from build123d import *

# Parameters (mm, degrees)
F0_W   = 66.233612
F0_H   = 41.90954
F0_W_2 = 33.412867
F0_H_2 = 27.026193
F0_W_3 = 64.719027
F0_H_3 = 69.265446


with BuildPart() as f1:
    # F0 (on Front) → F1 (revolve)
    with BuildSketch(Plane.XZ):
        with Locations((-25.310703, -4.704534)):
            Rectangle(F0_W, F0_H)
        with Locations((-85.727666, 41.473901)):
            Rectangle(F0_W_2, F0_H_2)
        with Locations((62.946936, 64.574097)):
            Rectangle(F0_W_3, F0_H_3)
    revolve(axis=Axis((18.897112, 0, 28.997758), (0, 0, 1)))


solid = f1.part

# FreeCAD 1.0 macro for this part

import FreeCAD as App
import Part
import Sketcher
from FreeCAD import Vector
Q = App.Units.Quantity

doc = App.newDocument("Part")
body = doc.addObject("PartDesign::Body", "Body")
body.AllowCompound = True

# Sketch on XZ plane
sketch1 = doc.addObject("Sketcher::SketchObject", "Sketch")
body.addObject(sketch1)
sketch1.AttachmentSupport = (doc.XZ_Plane, [""])
sketch1.MapMode = "FlatFace"
sketch1.addGeometry(Part.LineSegment(Vector(-58, 16, 0), Vector(-58, -26, 0)), False)
sketch1.addGeometry(Part.LineSegment(Vector(-58, -26, 0), Vector(8, -26, 0)), False)
sketch1.addGeometry(Part.LineSegment(Vector(8, -26, 0), Vector(8, 16, 0)), False)
sketch1.addGeometry(Part.LineSegment(Vector(8, 16, 0), Vector(-58, 16, 0)), False)
sketch1.addGeometry(Part.LineSegment(Vector(-102, 55, 0), Vector(-102, 28, 0)), False)
sketch1.addGeometry(Part.LineSegment(Vector(-102, 28, 0), Vector(-69, 28, 0)), False)
sketch1.addGeometry(Part.LineSegment(Vector(-69, 28, 0), Vector(-69, 55, 0)), False)
sketch1.addGeometry(Part.LineSegment(Vector(-69, 55, 0), Vector(-102, 55, 0)), False)
sketch1.addGeometry(Part.LineSegment(Vector(31, 99, 0), Vector(31, 30, 0)), False)
sketch1.addGeometry(Part.LineSegment(Vector(31, 30, 0), Vector(95, 30, 0)), False)
sketch1.addGeometry(Part.LineSegment(Vector(95, 30, 0), Vector(95, 99, 0)), False)
sketch1.addGeometry(Part.LineSegment(Vector(95, 99, 0), Vector(31, 99, 0)), False)
sketch1.addGeometry(Part.LineSegment(Vector(19, -26, 0), Vector(19, 99, 0)), True)  # axis
sketch1.addConstraint(Sketcher.Constraint("Coincident", 0, 2, 1, 1))
sketch1.addConstraint(Sketcher.Constraint("Coincident", 1, 2, 2, 1))
sketch1.addConstraint(Sketcher.Constraint("Coincident", 2, 2, 3, 1))
sketch1.addConstraint(Sketcher.Constraint("Coincident", 3, 2, 0, 1))
sketch1.addConstraint(Sketcher.Constraint("Coincident", 4, 2, 5, 1))
sketch1.addConstraint(Sketcher.Constraint("Coincident", 5, 2, 6, 1))
sketch1.addConstraint(Sketcher.Constraint("Coincident", 6, 2, 7, 1))
sketch1.addConstraint(Sketcher.Constraint("Coincident", 7, 2, 4, 1))
sketch1.addConstraint(Sketcher.Constraint("Coincident", 8, 2, 9, 1))
sketch1.addConstraint(Sketcher.Constraint("Coincident", 9, 2, 10, 1))
sketch1.addConstraint(Sketcher.Constraint("Coincident", 10, 2, 11, 1))
sketch1.addConstraint(Sketcher.Constraint("Coincident", 11, 2, 8, 1))
sketch1.addConstraint(Sketcher.Constraint("Vertical", 0))
sketch1.addConstraint(Sketcher.Constraint("Horizontal", 1))
sketch1.addConstraint(Sketcher.Constraint("Vertical", 2))
sketch1.addConstraint(Sketcher.Constraint("Horizontal", 3))
sketch1.addConstraint(Sketcher.Constraint("Vertical", 4))
sketch1.addConstraint(Sketcher.Constraint("Horizontal", 5))
sketch1.addConstraint(Sketcher.Constraint("Vertical", 6))
sketch1.addConstraint(Sketcher.Constraint("Horizontal", 7))
sketch1.addConstraint(Sketcher.Constraint("Vertical", 8))
sketch1.addConstraint(Sketcher.Constraint("Horizontal", 9))
sketch1.addConstraint(Sketcher.Constraint("Vertical", 10))
sketch1.addConstraint(Sketcher.Constraint("Horizontal", 11))
sketch1.addConstraint(Sketcher.Constraint("Vertical", 12))
sketch1.addConstraint(Sketcher.Constraint("Horizontal", 1, 2, 12, 1))
sketch1.addConstraint(Sketcher.Constraint("Horizontal", 11, 2, 12, 2))
sketch1.addConstraint(Sketcher.Constraint("DistanceX", 1, 1, 1, 2, Q("66.233612 mm")))
sketch1.addConstraint(Sketcher.Constraint("DistanceY", 0, 2, 0, 1, Q("41.90954 mm")))
sketch1.addConstraint(Sketcher.Constraint("DistanceX", 4, 2, -1, 1, Q("102.4341 mm")))
sketch1.addConstraint(Sketcher.Constraint("DistanceY", 0, 2, 6, 2, Q("80.646301 mm")))
sketch1.addConstraint(Sketcher.Constraint("DistanceX", 5, 1, 5, 2, Q("33.412867 mm")))
sketch1.addConstraint(Sketcher.Constraint("DistanceX", 9, 1, 9, 2, Q("64.719027 mm")))
sketch1.addConstraint(Sketcher.Constraint("DistanceY", 4, 2, 4, 1, Q("27.026193 mm")))
sketch1.addConstraint(Sketcher.Constraint("DistanceY", 8, 2, 8, 1, Q("69.265446 mm")))
sketch1.addConstraint(Sketcher.Constraint("DistanceY", 12, 1, 12, 2, Q("124.866124 mm")))
sketch1.addConstraint(Sketcher.Constraint("DistanceX", 0, 2, -1, 1, Q("58.427509 mm")))
sketch1.addConstraint(Sketcher.Constraint("DistanceX", -1, 1, 9, 2, Q("95.306449 mm")))
sketch1.addConstraint(Sketcher.Constraint("DistanceY", -1, 1, 10, 2, Q("99.20682 mm")))
sketch1.addConstraint(Sketcher.Constraint("DistanceX", -1, 1, 12, 1, Q("18.897112 mm")))
revolution = doc.addObject("PartDesign::Revolution", "Revolution")
body.addObject(revolution)
revolution.Profile = sketch1
revolution.ReferenceAxis = (sketch1, ["Axis0"])
revolution.Angle = 360

doc.recompute()
